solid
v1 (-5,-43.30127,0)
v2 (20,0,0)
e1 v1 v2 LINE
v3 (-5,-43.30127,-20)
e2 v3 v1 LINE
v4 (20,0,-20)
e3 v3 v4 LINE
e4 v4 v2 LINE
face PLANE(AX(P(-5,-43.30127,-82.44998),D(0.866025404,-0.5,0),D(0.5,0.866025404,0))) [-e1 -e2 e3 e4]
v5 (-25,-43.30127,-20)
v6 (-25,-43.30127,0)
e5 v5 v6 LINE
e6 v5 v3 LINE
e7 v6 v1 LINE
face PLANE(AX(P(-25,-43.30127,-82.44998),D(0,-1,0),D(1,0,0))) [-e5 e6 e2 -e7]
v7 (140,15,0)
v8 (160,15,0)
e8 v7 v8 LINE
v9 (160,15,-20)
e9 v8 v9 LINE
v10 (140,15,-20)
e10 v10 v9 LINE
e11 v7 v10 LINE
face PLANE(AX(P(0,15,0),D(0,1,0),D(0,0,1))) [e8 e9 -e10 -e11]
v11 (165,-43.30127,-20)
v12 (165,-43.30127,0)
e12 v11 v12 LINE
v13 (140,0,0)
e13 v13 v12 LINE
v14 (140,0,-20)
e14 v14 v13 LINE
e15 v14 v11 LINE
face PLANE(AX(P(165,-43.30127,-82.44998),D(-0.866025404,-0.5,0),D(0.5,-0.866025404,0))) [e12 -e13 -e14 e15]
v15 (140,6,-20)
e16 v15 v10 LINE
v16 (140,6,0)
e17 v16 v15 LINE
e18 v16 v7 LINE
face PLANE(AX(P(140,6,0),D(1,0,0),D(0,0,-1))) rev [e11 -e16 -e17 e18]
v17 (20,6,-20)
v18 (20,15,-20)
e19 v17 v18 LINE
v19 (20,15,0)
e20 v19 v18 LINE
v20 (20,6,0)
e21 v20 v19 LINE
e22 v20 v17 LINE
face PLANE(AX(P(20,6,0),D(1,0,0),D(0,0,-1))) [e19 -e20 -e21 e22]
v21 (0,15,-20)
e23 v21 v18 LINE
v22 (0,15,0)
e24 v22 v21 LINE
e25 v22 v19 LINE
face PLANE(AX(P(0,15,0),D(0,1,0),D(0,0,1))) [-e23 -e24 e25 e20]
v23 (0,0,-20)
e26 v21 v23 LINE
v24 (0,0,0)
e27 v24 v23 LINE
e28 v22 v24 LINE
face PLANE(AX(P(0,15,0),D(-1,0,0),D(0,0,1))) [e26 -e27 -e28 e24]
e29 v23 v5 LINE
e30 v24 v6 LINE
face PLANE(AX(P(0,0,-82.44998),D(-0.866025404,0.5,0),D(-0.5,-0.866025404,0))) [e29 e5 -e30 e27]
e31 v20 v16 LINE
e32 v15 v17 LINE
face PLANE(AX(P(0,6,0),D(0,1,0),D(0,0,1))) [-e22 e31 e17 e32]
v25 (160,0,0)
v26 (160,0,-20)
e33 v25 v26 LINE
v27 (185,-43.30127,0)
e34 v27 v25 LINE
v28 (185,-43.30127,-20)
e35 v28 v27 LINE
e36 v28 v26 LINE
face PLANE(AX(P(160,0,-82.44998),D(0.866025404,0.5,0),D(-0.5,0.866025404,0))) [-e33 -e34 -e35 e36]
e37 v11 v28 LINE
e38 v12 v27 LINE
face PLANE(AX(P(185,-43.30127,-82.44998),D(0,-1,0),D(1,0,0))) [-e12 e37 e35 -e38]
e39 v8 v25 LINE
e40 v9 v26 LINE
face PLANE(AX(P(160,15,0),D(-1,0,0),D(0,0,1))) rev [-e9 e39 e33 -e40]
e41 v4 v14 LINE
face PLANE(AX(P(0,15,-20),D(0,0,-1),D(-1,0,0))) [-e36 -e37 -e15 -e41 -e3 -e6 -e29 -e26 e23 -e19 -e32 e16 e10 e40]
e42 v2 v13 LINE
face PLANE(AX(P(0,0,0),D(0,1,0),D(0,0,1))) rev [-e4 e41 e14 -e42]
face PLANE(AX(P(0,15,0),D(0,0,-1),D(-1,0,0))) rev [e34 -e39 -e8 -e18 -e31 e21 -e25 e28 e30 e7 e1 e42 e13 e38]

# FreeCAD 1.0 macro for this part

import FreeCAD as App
import Part
import Sketcher
from FreeCAD import Vector
Q = App.Units.Quantity


def add_polygon(sketch, points):
    """Adds a closed chain of lines whose ends are joined by coincident constraints."""
    first, n = sketch.GeometryCount, len(points)
    for a, b in zip(points, points[1:] + points[:1]):
        sketch.addGeometry(Part.LineSegment(App.Vector(*a, 0), App.Vector(*b, 0)), False)
    for i in range(n):
        sketch.addConstraint(Sketcher.Constraint("Coincident", first + i, 2, first + (i + 1) % n, 1))

doc = App.newDocument("Part")
body = doc.addObject("PartDesign::Body", "Body")

# Sketch on XZ plane
sketch1 = body.newObject("Sketcher::SketchObject", "Sketch")
sketch1.AttachmentSupport = (doc.getObject("XZ_Plane"), [""])
sketch1.MapMode = "FlatFace"
add_polygon(sketch1, [(0, -20), (0, 0), (160, 0), (160, -20)])  # lines 0-3
sketch1.addConstraint([
    Sketcher.Constraint("Vertical", 0),
    Sketcher.Constraint("Horizontal", 1),
    Sketcher.Constraint("Vertical", 2),
    Sketcher.Constraint("Horizontal", 3),
    Sketcher.Constraint("Coincident", 0, 2, -1, 1),
    Sketcher.Constraint("DistanceX", 1, 1, 1, 2, Q("160 mm")),
    Sketcher.Constraint("DistanceY", 0, 1, 0, 2, Q("20 mm")),
])
pad1 = body.newObject("PartDesign::Pad", "Pad")
pad1.Profile = sketch1
pad1.Length = 15
pad1.Reversed = True

# Sketch on XZ plane
sketch2 = body.newObject("Sketcher::SketchObject", "Sketch001")
sketch2.AttachmentSupport = (doc.getObject("XZ_Plane"), [""])
sketch2.MapMode = "FlatFace"
sketch2.AttachmentOffset = App.Placement(Vector(0, 0, -15), App.Rotation())
add_polygon(sketch2, [(20, -20), (20, 0), (140, 0), (140, -20)])  # lines 0-3
sketch2.addConstraint([
    Sketcher.Constraint("Vertical", 0),
    Sketcher.Constraint("Horizontal", 1),
    Sketcher.Constraint("Vertical", 2),
    Sketcher.Constraint("Horizontal", 3),
    Sketcher.Constraint("PointOnObject", 0, 2, -1),
    Sketcher.Constraint("DistanceX", 1, 1, 1, 2, Q("120 mm")),
    Sketcher.Constraint("DistanceY", 0, 1, 0, 2, Q("20 mm")),
    Sketcher.Constraint("DistanceX", -1, 1, 0, 2, Q("20 mm")),
])
pocket1 = body.newObject("PartDesign::Pocket", "Pocket")
pocket1.Profile = sketch2
pocket1.Length = 9
pocket1.Reversed = True

# Sketch on XY plane
sketch3 = body.newObject("Sketcher::SketchObject", "Sketch002")
sketch3.AttachmentSupport = (doc.getObject("XY_Plane"), [""])
sketch3.MapMode = "FlatFace"
add_polygon(sketch3, [(0, 0), (-25, -43), (-5, -43), (20, 0)])  # lines 0-3
add_polygon(sketch3, [(140, 0), (165, -43), (185, -43), (160, 0)])  # lines 4-7
sketch3.addConstraint([
    Sketcher.Constraint("Horizontal", 1),
    Sketcher.Constraint("Horizontal", 3),
    Sketcher.Constraint("Horizontal", 5),
    Sketcher.Constraint("Horizontal", 7),
    Sketcher.Constraint("Coincident", 3, 2, -1, 1),
    Sketcher.Constraint("PointOnObject", 6, 2, -1),
    Sketcher.Constraint("Parallel", 0, 2),
    Sketcher.Constraint("Parallel", 4, 6),
    Sketcher.Constraint("Horizontal", 1, 2, 4, 2),
    Sketcher.Constraint("Equal", 3, 5),
    Sketcher.Constraint("Equal", 2, 4),
    Sketcher.Constraint("DistanceX", 1, 1, 1, 2, Q("20 mm")),
    Sketcher.Constraint("Angle", 0, Q("-120 deg")),
    Sketcher.Constraint("Distance", 0, Q("50 mm")),
    Sketcher.Constraint("DistanceX", -1, 1, 4, 2, Q("165 mm")),
])
pad2 = body.newObject("PartDesign::Pad", "Pad001")
pad2.Profile = sketch3
pad2.Length = 20
pad2.Reversed = True

doc.recompute()
